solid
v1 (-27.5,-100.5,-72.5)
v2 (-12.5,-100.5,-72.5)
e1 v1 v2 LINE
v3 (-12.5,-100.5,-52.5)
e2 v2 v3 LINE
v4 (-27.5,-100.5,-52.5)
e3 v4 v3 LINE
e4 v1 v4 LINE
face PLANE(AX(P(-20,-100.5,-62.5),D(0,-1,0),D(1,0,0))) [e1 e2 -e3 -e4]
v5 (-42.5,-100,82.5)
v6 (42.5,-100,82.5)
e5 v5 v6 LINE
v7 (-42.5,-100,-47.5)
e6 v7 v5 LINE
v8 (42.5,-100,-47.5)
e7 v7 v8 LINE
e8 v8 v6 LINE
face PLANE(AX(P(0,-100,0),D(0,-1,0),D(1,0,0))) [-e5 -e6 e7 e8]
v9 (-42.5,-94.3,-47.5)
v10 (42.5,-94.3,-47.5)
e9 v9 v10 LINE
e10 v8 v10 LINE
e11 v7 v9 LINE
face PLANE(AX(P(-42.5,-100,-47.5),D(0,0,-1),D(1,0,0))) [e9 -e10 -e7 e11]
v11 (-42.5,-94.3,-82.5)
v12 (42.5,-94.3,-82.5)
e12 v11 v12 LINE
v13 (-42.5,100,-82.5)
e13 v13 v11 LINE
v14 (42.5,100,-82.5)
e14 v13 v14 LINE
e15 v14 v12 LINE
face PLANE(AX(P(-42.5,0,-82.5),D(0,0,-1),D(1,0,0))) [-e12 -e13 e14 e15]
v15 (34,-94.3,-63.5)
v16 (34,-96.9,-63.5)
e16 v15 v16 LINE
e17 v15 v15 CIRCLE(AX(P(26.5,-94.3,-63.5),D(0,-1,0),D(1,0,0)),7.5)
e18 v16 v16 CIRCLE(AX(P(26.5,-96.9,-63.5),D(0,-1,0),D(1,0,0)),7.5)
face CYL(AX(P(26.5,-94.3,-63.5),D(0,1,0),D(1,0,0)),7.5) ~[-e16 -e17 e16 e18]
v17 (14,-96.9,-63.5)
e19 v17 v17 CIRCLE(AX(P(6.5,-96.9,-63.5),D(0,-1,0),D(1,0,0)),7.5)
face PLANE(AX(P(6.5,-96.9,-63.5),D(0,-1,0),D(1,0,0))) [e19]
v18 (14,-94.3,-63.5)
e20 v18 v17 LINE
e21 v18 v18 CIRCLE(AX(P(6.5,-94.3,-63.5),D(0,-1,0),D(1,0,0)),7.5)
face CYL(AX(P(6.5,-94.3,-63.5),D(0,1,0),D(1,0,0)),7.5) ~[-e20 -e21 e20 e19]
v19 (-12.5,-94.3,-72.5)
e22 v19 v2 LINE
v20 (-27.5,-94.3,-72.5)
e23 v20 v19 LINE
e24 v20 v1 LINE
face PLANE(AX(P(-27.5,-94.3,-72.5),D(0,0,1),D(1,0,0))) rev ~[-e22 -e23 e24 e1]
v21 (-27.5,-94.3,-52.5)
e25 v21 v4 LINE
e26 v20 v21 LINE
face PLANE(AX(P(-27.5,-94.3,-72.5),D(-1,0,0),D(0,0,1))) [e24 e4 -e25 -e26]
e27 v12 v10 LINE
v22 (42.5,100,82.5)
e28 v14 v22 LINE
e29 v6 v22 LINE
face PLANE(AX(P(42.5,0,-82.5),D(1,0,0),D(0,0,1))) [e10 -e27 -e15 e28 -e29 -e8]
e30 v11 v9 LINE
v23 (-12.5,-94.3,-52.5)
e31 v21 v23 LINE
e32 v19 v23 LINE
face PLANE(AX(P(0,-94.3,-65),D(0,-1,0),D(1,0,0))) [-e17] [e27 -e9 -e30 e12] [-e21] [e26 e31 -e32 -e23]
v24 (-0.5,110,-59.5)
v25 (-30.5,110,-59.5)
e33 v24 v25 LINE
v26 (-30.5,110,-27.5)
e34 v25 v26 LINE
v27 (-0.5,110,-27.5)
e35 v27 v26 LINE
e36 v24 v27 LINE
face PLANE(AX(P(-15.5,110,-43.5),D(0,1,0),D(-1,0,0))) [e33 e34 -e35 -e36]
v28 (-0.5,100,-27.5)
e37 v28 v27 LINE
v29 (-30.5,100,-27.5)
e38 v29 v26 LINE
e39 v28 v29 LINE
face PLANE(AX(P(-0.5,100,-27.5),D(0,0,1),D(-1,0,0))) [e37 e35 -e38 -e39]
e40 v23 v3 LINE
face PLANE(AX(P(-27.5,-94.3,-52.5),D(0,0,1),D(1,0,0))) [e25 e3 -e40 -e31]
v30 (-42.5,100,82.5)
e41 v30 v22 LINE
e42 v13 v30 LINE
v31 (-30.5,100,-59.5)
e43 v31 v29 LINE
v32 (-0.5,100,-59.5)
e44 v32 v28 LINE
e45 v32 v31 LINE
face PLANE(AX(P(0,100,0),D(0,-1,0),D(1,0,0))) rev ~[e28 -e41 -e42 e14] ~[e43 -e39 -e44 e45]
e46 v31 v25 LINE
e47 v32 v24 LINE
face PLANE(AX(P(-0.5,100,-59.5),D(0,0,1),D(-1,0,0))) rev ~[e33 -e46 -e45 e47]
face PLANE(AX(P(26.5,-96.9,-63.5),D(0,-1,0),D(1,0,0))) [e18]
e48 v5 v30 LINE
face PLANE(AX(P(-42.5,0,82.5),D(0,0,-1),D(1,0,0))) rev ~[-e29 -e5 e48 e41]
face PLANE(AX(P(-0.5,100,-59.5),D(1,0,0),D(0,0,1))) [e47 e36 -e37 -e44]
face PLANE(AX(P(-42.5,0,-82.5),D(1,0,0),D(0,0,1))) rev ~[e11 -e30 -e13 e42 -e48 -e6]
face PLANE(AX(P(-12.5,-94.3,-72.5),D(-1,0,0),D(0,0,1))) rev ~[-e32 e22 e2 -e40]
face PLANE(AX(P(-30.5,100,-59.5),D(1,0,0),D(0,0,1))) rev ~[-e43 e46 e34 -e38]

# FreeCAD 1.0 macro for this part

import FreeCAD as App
import Part
import Sketcher

V = App.Vector
Q = App.Units.Quantity


def add_polygon(sketch, points):
    """Adds a closed chain of lines whose ends are joined by coincident constraints."""
    first, n = sketch.GeometryCount, len(points)
    for a, b in zip(points, points[1:] + points[:1]):
        sketch.addGeometry(Part.LineSegment(App.Vector(*a, 0), App.Vector(*b, 0)), False)
    for i in range(n):
        sketch.addConstraint(Sketcher.Constraint("Coincident", first + i, 2, first + (i + 1) % n, 1))

doc = App.newDocument("Part")
body = doc.addObject("PartDesign::Body", "Body")

# Sketch on XZ plane
sketch1 = body.newObject("Sketcher::SketchObject", "Sketch")
sketch1.AttachmentSupport = (doc.getObject("XZ_Plane"), [""])
sketch1.MapMode = "FlatFace"
add_polygon(sketch1, [(-42.5, 82.5), (-42.5, -82.5), (42.5, -82.5), (42.5, 82.5)])  # lines 0-3
sketch1.addConstraint([
    Sketcher.Constraint("Vertical", 0),
    Sketcher.Constraint("Horizontal", 1),
    Sketcher.Constraint("Vertical", 2),
    Sketcher.Constraint("Horizontal", 3),
    Sketcher.Constraint("Symmetric", 0, 2, 2, 2, -1, 1),
    Sketcher.Constraint("DistanceX", 1, 1, 1, 2, Q("85 mm")),
    Sketcher.Constraint("DistanceY", 0, 2, 0, 1, Q("165 mm")),
])
pad1 = body.newObject("PartDesign::Pad", "Pad")
pad1.Profile = sketch1
pad1.Length = 200
pad1.Midplane = True

# Sketch on XZ plane
sketch2 = body.newObject("Sketcher::SketchObject", "Sketch001")
sketch2.AttachmentSupport = (doc.getObject("XZ_Plane"), [""])
sketch2.MapMode = "FlatFace"
sketch2.AttachmentOffset = App.Placement(V(0, 0, -100), App.Rotation())
add_polygon(sketch2, [(-0.5, -27.5), (-0.5, -59.5), (-30.5, -59.5), (-30.5, -27.5)])  # lines 0-3
sketch2.addConstraint([
    Sketcher.Constraint("Vertical", 0),
    Sketcher.Constraint("Horizontal", 1),
    Sketcher.Constraint("Vertical", 2),
    Sketcher.Constraint("Horizontal", 3),
    Sketcher.Constraint("DistanceX", 1, 2, 1, 1, Q("30 mm")),
    Sketcher.Constraint("DistanceY", 0, 2, 0, 1, Q("32 mm")),
    Sketcher.Constraint("DistanceX", 0, 2, -1, 1, Q("0.5 mm")),
    Sketcher.Constraint("DistanceY", 0, 2, -1, 1, Q("59.5 mm")),
])
pad2 = body.newObject("PartDesign::Pad", "Pad001")
pad2.Profile = sketch2
pad2.Length = 10
pad2.Reversed = True

# Sketch on XZ plane
sketch3 = body.newObject("Sketcher::SketchObject", "Sketch002")
sketch3.AttachmentSupport = (doc.getObject("XZ_Plane"), [""])
sketch3.MapMode = "FlatFace"
sketch3.AttachmentOffset = App.Placement(V(0, 0, 100), App.Rotation())
add_polygon(sketch3, [(-42.5, -47.5), (-42.5, -82.5), (42.5, -82.5), (42.5, -47.5)])  # lines 0-3
sketch3.addConstraint([
    Sketcher.Constraint("Vertical", 0),
    Sketcher.Constraint("Horizontal", 1),
    Sketcher.Constraint("Vertical", 2),
    Sketcher.Constraint("Horizontal", 3),
    Sketcher.Constraint("DistanceX", 1, 1, 1, 2, Q("85 mm")),
    Sketcher.Constraint("DistanceY", 0, 2, 0, 1, Q("35 mm")),
    Sketcher.Constraint("DistanceX", 0, 2, -1, 1, Q("42.5 mm")),
    Sketcher.Constraint("DistanceY", 0, 2, -1, 1, Q("82.5 mm")),
])
pocket1 = body.newObject("PartDesign::Pocket", "Pocket")
pocket1.Profile = sketch3
pocket1.Length = 5.7

# Sketch on XZ plane
sketch4 = body.newObject("Sketcher::SketchObject", "Sketch003")
sketch4.AttachmentSupport = (doc.getObject("XZ_Plane"), [""])
sketch4.MapMode = "FlatFace"
sketch4.AttachmentOffset = App.Placement(V(0, 0, 94.3), App.Rotation())
sketch4.addGeometry([
    Part.Circle(V(6.5, -63.5, 0), V(0, 0, 1), 7.5),
    Part.Circle(V(26.5, -63.5, 0), V(0, 0, 1), 7.5),
], False)
sketch4.addConstraint([
    Sketcher.Constraint("Equal", 0, 1),
    Sketcher.Constraint("Horizontal", 0, 3, 1, 3),
    Sketcher.Constraint("Diameter", 0, Q("15 mm")),
    Sketcher.Constraint("DistanceX", 0, 3, 1, 3, Q("20 mm")),
    Sketcher.Constraint("DistanceX", -1, 1, 0, 3, Q("6.5 mm")),
    Sketcher.Constraint("DistanceY", 0, 3, -1, 1, Q("63.5 mm")),
])
pad3 = body.newObject("PartDesign::Pad", "Pad002")
pad3.Profile = sketch4
pad3.Length = 2.6

# Sketch on XZ plane
sketch5 = body.newObject("Sketcher::SketchObject", "Sketch004")
sketch5.AttachmentSupport = (doc.getObject("XZ_Plane"), [""])
sketch5.MapMode = "FlatFace"
sketch5.AttachmentOffset = App.Placement(V(0, 0, 94.3), App.Rotation())
add_polygon(sketch5, [(-27.5, -52.5), (-27.5, -72.5), (-12.5, -72.5), (-12.5, -52.5)])  # lines 0-3
sketch5.addConstraint([
    Sketcher.Constraint("Vertical", 0),
    Sketcher.Constraint("Horizontal", 1),
    Sketcher.Constraint("Vertical", 2),
    Sketcher.Constraint("Horizontal", 3),
    Sketcher.Constraint("DistanceX", 1, 1, 1, 2, Q("15 mm")),
    Sketcher.Constraint("DistanceY", 0, 2, 0, 1, Q("20 mm")),
    Sketcher.Constraint("DistanceX", 0, 2, -1, 1, Q("27.5 mm")),
    Sketcher.Constraint("DistanceY", 0, 2, -1, 1, Q("72.5 mm")),
])
pad4 = body.newObject("PartDesign::Pad", "Pad003")
pad4.Profile = sketch5
pad4.Length = 6.2

doc.recompute()
